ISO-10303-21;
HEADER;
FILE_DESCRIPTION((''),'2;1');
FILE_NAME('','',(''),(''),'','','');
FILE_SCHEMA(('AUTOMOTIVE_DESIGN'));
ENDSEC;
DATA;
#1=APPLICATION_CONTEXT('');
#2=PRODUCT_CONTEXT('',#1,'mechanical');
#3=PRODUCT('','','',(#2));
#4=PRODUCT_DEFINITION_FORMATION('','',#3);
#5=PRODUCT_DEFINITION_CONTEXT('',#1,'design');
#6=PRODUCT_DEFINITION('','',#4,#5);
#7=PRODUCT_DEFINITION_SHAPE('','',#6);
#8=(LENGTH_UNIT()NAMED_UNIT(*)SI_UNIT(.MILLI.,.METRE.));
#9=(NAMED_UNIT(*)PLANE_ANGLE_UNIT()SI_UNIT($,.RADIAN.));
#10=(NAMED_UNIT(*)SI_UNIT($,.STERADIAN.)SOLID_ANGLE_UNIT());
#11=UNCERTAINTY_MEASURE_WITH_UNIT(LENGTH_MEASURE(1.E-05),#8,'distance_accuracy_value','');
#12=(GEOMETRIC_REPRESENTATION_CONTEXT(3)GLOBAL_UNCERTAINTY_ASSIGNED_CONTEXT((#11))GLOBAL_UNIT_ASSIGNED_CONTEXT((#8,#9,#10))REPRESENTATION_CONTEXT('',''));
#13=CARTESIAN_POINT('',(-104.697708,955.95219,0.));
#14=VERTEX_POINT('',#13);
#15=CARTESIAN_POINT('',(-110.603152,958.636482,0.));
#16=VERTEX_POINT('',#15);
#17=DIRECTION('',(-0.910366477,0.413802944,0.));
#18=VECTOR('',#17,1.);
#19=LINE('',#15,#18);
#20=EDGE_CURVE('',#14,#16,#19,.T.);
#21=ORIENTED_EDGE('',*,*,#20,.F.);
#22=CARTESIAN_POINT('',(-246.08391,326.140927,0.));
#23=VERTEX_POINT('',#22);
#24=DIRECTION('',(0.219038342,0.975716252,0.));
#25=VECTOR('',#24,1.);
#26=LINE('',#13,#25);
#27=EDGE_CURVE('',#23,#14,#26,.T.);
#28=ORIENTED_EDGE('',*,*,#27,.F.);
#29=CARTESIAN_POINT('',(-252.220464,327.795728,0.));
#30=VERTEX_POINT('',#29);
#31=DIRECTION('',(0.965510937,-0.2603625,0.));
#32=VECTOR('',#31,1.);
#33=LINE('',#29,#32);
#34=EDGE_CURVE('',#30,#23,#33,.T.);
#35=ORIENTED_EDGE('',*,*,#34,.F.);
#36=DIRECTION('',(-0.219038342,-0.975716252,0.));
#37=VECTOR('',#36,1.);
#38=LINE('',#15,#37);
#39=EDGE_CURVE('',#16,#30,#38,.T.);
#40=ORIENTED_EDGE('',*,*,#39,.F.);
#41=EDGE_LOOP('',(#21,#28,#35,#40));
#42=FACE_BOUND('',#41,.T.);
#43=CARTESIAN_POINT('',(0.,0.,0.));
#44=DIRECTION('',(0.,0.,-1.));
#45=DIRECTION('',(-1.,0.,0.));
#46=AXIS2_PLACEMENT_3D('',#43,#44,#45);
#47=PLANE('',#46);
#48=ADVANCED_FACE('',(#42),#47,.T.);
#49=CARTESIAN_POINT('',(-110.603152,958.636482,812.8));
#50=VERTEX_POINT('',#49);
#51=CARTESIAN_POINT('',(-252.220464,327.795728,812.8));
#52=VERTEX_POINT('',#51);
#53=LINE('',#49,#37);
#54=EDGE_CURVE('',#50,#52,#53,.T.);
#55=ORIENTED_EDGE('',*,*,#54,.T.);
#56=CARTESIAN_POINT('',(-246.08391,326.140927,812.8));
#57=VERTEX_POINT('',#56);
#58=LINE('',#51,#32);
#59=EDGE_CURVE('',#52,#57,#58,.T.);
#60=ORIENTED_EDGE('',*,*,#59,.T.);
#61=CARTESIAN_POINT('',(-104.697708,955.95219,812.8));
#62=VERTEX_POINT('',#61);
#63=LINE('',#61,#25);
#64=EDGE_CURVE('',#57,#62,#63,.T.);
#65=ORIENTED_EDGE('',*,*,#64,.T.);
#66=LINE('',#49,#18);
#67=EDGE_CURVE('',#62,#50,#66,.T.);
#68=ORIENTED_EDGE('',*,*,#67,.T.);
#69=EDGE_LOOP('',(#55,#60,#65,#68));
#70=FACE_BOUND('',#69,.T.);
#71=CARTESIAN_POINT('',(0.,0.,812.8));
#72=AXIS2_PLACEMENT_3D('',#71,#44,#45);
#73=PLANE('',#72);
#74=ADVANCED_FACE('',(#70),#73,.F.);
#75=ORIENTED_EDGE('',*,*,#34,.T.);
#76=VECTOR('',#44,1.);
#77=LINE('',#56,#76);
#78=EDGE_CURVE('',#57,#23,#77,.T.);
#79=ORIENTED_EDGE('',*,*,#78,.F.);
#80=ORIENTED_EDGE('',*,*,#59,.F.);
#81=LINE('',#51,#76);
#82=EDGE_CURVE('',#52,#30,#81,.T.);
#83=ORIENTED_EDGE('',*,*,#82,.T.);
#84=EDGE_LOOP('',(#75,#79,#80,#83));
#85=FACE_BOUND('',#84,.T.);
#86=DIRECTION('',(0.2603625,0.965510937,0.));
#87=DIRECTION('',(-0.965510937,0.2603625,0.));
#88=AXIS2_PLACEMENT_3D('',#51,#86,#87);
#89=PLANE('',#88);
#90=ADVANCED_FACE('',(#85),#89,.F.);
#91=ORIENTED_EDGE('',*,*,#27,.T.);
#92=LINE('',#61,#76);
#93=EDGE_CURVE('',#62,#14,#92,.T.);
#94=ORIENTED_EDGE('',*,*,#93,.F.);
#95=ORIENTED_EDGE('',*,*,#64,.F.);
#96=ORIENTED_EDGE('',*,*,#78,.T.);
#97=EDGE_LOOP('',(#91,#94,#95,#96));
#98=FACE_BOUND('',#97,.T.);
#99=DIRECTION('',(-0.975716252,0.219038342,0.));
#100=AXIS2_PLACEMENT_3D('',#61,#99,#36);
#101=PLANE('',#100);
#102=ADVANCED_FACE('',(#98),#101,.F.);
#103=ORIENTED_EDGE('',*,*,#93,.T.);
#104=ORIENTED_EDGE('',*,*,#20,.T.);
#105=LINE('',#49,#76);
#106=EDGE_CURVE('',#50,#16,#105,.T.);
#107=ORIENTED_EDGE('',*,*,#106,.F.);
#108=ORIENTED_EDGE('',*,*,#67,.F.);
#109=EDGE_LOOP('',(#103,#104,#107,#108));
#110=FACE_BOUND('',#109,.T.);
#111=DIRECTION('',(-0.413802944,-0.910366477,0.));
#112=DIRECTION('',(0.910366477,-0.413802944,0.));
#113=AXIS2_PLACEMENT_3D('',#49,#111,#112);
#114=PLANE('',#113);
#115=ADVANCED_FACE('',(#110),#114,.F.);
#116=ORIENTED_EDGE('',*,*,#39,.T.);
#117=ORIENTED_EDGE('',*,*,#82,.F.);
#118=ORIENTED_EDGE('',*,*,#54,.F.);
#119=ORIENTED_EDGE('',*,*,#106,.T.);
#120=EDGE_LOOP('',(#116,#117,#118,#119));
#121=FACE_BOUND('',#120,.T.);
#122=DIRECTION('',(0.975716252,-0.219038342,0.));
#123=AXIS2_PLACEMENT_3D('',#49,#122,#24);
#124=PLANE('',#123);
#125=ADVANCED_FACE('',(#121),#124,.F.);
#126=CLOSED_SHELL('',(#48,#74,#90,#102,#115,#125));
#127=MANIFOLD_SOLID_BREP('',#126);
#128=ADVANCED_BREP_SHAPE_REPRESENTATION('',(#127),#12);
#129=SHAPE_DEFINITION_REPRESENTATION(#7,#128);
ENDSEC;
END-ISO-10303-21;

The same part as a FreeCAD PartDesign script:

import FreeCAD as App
import Part
import Sketcher
from FreeCAD import Vector
Q = App.Units.Quantity

doc = App.newDocument("Part")
params = doc.addObject("Spreadsheet::Sheet", "Params")
for row, (alias, value) in enumerate([
    ("pad1_length", "32 in"),
], start=1):
    params.set(f"A{row}", alias)
    params.set(f"B{row}", "=" + value)
    params.setAlias(f"B{row}", alias)

body = doc.addObject("PartDesign::Body", "Body")

sketch1 = body.newObject("Sketcher::SketchObject", "Sketch")
sketch1.AttachmentSupport = (doc.getObject("XY_Plane"), [""])
sketch1.MapMode = "FlatFace"
sketch1.addGeometry(Part.LineSegment(Vector(-110.603152, 958.636482, 0), Vector(-252.220464, 327.795728, 0)), False)
sketch1.addGeometry(Part.LineSegment(Vector(-252.220464, 327.795728, 0), Vector(-246.08391, 326.140927, 0)), False)
sketch1.addGeometry(Part.LineSegment(Vector(-246.08391, 326.140927, 0), Vector(-104.697708, 955.95219, 0)), False)
sketch1.addGeometry(Part.LineSegment(Vector(-104.697708, 955.95219, 0), Vector(-110.603152, 958.636482, 0)), False)
sketch1.addConstraint(Sketcher.Constraint("Coincident", 0, 2, 1, 1))
sketch1.addConstraint(Sketcher.Constraint("Coincident", 1, 2, 2, 1))
sketch1.addConstraint(Sketcher.Constraint("Coincident", 2, 2, 3, 1))
sketch1.addConstraint(Sketcher.Constraint("Coincident", 3, 2, 0, 1))
sketch1.addConstraint(Sketcher.Constraint("Parallel", 0, 2))
sketch1.addConstraint(Sketcher.Constraint("DistanceY", 1, 2, 3, 2, Q("24.9013998 in")))
sketch1.addConstraint(Sketcher.Constraint("DistanceY", 1, 2, 0, 2, 1.654801))
sketch1.addConstraint(Sketcher.Constraint("DistanceX", 1, 2, 2, 2, 141.386202))
sketch1.addConstraint(Sketcher.Constraint("DistanceY", -1, 1, 0, 2, 327.795728))
sketch1.addConstraint(Sketcher.Constraint("DistanceX", 1, 2, -1, 1, 246.08391))
sketch1.addConstraint(Sketcher.Constraint("DistanceY", -1, 1, 2, 2, 955.95219))
sketch1.addConstraint(Sketcher.Constraint("DistanceX", 3, 2, -1, 1, 110.603152))
pad1 = body.newObject("PartDesign::Pad", "Pad")
pad1.Profile = sketch1
pad1.setExpression("Length", "Params.pad1_length")

doc.recompute()
